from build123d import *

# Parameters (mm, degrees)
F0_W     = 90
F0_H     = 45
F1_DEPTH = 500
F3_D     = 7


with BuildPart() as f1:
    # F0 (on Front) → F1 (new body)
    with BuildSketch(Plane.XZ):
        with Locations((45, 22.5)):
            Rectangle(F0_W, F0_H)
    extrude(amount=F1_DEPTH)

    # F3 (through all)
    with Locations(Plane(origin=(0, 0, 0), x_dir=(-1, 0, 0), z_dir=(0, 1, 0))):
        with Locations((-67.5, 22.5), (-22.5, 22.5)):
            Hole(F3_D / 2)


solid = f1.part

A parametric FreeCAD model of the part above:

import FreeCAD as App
import Part
import Sketcher


def add_polygon(sketch, points):
    """Adds a closed chain of lines whose ends are joined by coincident constraints."""
    first, n = sketch.GeometryCount, len(points)
    for a, b in zip(points, points[1:] + points[:1]):
        sketch.addGeometry(Part.LineSegment(App.Vector(*a, 0), App.Vector(*b, 0)), False)
    for i in range(n):
        sketch.addConstraint(Sketcher.Constraint("Coincident", first + i, 2, first + (i + 1) % n, 1))

doc = App.newDocument("Part")
body = doc.addObject("PartDesign::Body", "Body")

# Sketch on XZ plane
sketch1 = body.newObject("Sketcher::SketchObject", "Sketch")
sketch1.AttachmentSupport = (doc.getObject("XZ_Plane"), [""])
sketch1.MapMode = "FlatFace"
add_polygon(sketch1, [(0, 45), (0, 0), (90, 0), (90, 45)])  # lines 0-3
sketch1.addConstraint([
    Sketcher.Constraint("Vertical", 0),
    Sketcher.Constraint("Horizontal", 1),
    Sketcher.Constraint("Vertical", 2),
    Sketcher.Constraint("Horizontal", 3),
    Sketcher.Constraint("Coincident", 0, 2, -1, 1),
    Sketcher.Constraint("DistanceX", 1, 1, 1, 2, 90.0),
    Sketcher.Constraint("DistanceY", 0, 2, 0, 1, 45.0),
])
pad1 = body.newObject("PartDesign::Pad", "Pad")
pad1.Profile = sketch1
pad1.Length = 500

# Sketch on XZ plane
sketch2 = body.newObject("Sketcher::SketchObject", "Sketch001")
sketch2.AttachmentSupport = (doc.getObject("XZ_Plane"), [""])
sketch2.MapMode = "FlatFace"
sketch2.addGeometry([
    Part.Circle(App.Vector(67.5, 22.5, 0), App.Vector(0, 0, 1), 3.5),
    Part.Circle(App.Vector(22.5, 22.5, 0), App.Vector(0, 0, 1), 3.5),
], False)
sketch2.addConstraint([
    Sketcher.Constraint("Equal", 0, 1),
    Sketcher.Constraint("Horizontal", 0, 3, 1, 3),
    Sketcher.Constraint("Diameter", 0, 7.0),
    Sketcher.Constraint("DistanceX", 1, 3, 0, 3, 45.0),
    Sketcher.Constraint("DistanceX", -1, 1, 0, 3, 67.5),
    Sketcher.Constraint("DistanceY", -1, 1, 0, 3, 22.5),
])
doc.recompute()
hole = body.newObject("PartDesign::Hole", "Hole")
hole.Profile = sketch2
hole.ThreadType = "None"
hole.Diameter = 7
hole.DepthType = "ThroughAll"
hole.Reversed = True

doc.recompute()
